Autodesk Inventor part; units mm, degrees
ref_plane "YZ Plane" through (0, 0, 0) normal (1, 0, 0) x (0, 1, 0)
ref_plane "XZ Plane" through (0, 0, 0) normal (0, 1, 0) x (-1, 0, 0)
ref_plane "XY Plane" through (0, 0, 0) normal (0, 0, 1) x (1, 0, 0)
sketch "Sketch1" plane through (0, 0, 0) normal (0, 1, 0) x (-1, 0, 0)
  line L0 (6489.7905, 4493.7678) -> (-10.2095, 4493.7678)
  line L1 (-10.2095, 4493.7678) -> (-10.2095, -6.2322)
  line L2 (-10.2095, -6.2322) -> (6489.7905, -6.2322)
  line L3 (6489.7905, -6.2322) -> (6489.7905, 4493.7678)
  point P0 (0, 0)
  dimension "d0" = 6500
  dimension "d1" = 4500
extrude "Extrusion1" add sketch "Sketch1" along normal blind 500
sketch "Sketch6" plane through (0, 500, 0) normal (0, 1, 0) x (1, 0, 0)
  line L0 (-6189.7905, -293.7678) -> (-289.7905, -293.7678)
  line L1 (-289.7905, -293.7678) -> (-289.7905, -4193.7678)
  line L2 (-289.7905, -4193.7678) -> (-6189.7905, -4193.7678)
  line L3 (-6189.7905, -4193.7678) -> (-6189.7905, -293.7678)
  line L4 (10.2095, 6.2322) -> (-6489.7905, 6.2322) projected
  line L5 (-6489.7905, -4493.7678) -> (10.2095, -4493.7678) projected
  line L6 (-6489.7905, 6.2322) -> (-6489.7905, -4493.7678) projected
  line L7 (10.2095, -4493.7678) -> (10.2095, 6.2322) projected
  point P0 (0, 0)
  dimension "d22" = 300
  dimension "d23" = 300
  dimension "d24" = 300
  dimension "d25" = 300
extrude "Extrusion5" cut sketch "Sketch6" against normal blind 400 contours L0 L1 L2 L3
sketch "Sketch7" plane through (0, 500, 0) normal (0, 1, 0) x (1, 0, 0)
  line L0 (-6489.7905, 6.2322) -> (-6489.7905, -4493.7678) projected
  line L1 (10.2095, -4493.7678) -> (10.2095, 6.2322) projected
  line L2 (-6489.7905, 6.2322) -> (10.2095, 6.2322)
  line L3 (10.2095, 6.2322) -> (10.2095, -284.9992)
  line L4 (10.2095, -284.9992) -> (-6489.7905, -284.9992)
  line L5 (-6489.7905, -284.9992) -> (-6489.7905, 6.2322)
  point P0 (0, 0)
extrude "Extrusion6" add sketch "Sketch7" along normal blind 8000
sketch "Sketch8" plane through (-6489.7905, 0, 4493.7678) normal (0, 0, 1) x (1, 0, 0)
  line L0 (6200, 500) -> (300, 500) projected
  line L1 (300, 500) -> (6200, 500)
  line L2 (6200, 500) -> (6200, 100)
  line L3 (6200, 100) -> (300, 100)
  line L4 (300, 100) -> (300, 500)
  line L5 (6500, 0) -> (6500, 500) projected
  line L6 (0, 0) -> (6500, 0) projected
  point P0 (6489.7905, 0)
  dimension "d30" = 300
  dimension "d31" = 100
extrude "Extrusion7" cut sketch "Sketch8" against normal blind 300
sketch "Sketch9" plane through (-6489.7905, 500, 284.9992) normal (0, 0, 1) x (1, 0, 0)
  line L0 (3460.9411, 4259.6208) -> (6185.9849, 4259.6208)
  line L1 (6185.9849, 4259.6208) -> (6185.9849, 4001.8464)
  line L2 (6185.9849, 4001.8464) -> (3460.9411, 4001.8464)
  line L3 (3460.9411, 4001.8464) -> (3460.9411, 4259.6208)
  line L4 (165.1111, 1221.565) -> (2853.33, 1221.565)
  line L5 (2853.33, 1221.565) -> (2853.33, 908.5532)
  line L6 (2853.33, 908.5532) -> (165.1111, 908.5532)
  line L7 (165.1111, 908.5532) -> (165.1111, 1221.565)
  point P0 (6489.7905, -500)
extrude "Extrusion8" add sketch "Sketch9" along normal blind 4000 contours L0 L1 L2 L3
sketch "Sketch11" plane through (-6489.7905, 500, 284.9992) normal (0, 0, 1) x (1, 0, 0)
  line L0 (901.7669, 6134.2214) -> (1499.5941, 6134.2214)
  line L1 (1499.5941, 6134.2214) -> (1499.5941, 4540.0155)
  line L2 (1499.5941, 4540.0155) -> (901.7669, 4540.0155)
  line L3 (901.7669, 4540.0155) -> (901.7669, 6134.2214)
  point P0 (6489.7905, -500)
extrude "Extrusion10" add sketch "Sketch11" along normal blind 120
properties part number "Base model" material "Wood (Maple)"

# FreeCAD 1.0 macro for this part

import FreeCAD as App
import Part
import Sketcher

doc = App.newDocument("Part")
body = doc.addObject("PartDesign::Body", "Body")

sketch1 = doc.addObject("Sketcher::SketchObject", "Sketch")
body.addObject(sketch1)
sketch1.AttachmentSupport = (doc.XZ_Plane, [""])
sketch1.MapMode = "FlatFace"
sketch1.addGeometry([
    Part.LineSegment(App.Vector(-6489.7905, -6.2322, 0), App.Vector(-6489.7905, 4493.7678, 0)),
    Part.LineSegment(App.Vector(-6489.7905, 4493.7678, 0), App.Vector(10.2095, 4493.7678, 0)),
    Part.LineSegment(App.Vector(10.2095, 4493.7678, 0), App.Vector(10.2095, -6.2322, 0)),
    Part.LineSegment(App.Vector(10.2095, -6.2322, 0), App.Vector(-6489.7905, -6.2322, 0)),
], False)
sketch1.addConstraint([
    Sketcher.Constraint("Coincident", 0, 2, 1, 1),
    Sketcher.Constraint("Coincident", 1, 2, 2, 1),
    Sketcher.Constraint("Coincident", 2, 2, 3, 1),
    Sketcher.Constraint("Coincident", 3, 2, 0, 1),
    Sketcher.Constraint("Vertical", 0),
    Sketcher.Constraint("Horizontal", 1),
    Sketcher.Constraint("Vertical", 2),
    Sketcher.Constraint("Horizontal", 3),
    Sketcher.Constraint("DistanceX", 1, 1, 1, 2, 6500.0),
    Sketcher.Constraint("DistanceY", 0, 1, 0, 2, 4500.0),
    Sketcher.Constraint("DistanceX", 0, 2, -1, 1, 6489.7905),
    Sketcher.Constraint("DistanceY", -1, 1, 0, 2, 4493.7678),
])
pad1 = doc.addObject("PartDesign::Pad", "Pad")
body.addObject(pad1)
pad1.Profile = sketch1
pad1.Length = 500
pad1.Reversed = True

sketch2 = doc.addObject("Sketcher::SketchObject", "Sketch001")
body.addObject(sketch2)
sketch2.AttachmentSupport = (doc.XZ_Plane, [""])
sketch2.MapMode = "FlatFace"
sketch2.AttachmentOffset = App.Placement(App.Vector(0, 0, -500), App.Rotation())
sketch2.addGeometry([
    Part.LineSegment(App.Vector(-289.7905, 293.7678, 0), App.Vector(-6189.7905, 293.7678, 0)),
    Part.LineSegment(App.Vector(-6189.7905, 293.7678, 0), App.Vector(-6189.7905, 4193.7678, 0)),
    Part.LineSegment(App.Vector(-6189.7905, 4193.7678, 0), App.Vector(-289.7905, 4193.7678, 0)),
    Part.LineSegment(App.Vector(-289.7905, 4193.7678, 0), App.Vector(-289.7905, 293.7678, 0)),
], False)
sketch2.addConstraint([
    Sketcher.Constraint("Coincident", 0, 2, 1, 1),
    Sketcher.Constraint("Coincident", 1, 2, 2, 1),
    Sketcher.Constraint("Coincident", 2, 2, 3, 1),
    Sketcher.Constraint("Coincident", 3, 2, 0, 1),
    Sketcher.Constraint("Horizontal", 0),
    Sketcher.Constraint("Vertical", 1),
    Sketcher.Constraint("Horizontal", 2),
    Sketcher.Constraint("Vertical", 3),
    Sketcher.Constraint("DistanceX", 0, 2, 0, 1, 5900.0),
    Sketcher.Constraint("DistanceY", 1, 1, 1, 2, 3900.0),
    Sketcher.Constraint("DistanceX", 0, 2, -1, 1, 6189.7905),
    Sketcher.Constraint("DistanceY", -1, 1, 0, 2, 293.7678),
])
pocket1 = doc.addObject("PartDesign::Pocket", "Pocket")
body.addObject(pocket1)
pocket1.Profile = sketch2
pocket1.Length = 400
pocket1.Reversed = True

sketch3 = doc.addObject("Sketcher::SketchObject", "Sketch002")
body.addObject(sketch3)
sketch3.AttachmentSupport = (doc.XZ_Plane, [""])
sketch3.MapMode = "FlatFace"
sketch3.AttachmentOffset = App.Placement(App.Vector(0, 0, -500), App.Rotation())
sketch3.addGeometry([
    Part.LineSegment(App.Vector(10.2095, -6.2322, 0), App.Vector(-6489.7905, -6.2322, 0)),
    Part.LineSegment(App.Vector(-6489.7905, -6.2322, 0), App.Vector(-6489.7905, 284.9992, 0)),
    Part.LineSegment(App.Vector(-6489.7905, 284.9992, 0), App.Vector(10.2095, 284.9992, 0)),
    Part.LineSegment(App.Vector(10.2095, 284.9992, 0), App.Vector(10.2095, -6.2322, 0)),
], False)
sketch3.addConstraint([
    Sketcher.Constraint("Coincident", 0, 2, 1, 1),
    Sketcher.Constraint("Coincident", 1, 2, 2, 1),
    Sketcher.Constraint("Coincident", 2, 2, 3, 1),
    Sketcher.Constraint("Coincident", 3, 2, 0, 1),
    Sketcher.Constraint("Horizontal", 0),
    Sketcher.Constraint("Vertical", 1),
    Sketcher.Constraint("Horizontal", 2),
    Sketcher.Constraint("Vertical", 3),
    Sketcher.Constraint("DistanceX", 0, 2, 0, 1, 6500.0),
    Sketcher.Constraint("DistanceY", 1, 1, 1, 2, 291.2314),
    Sketcher.Constraint("DistanceX", 0, 2, -1, 1, 6489.7905),
    Sketcher.Constraint("DistanceY", 0, 2, -1, 1, 6.2322),
])
pad2 = doc.addObject("PartDesign::Pad", "Pad001")
body.addObject(pad2)
pad2.Profile = sketch3
pad2.Length = 8000
pad2.Reversed = True

sketch4 = doc.addObject("Sketcher::SketchObject", "Sketch003")
body.addObject(sketch4)
sketch4.AttachmentSupport = (doc.XY_Plane, [""])
sketch4.MapMode = "FlatFace"
sketch4.AttachmentOffset = App.Placement(App.Vector(0, 0, 4493.7678), App.Rotation())
sketch4.addGeometry([
    Part.LineSegment(App.Vector(-289.7905, 100, 0), App.Vector(-289.7905, 500, 0)),
    Part.LineSegment(App.Vector(-289.7905, 500, 0), App.Vector(-6189.7905, 500, 0)),
    Part.LineSegment(App.Vector(-6189.7905, 500, 0), App.Vector(-6189.7905, 100, 0)),
    Part.LineSegment(App.Vector(-6189.7905, 100, 0), App.Vector(-289.7905, 100, 0)),
], False)
sketch4.addConstraint([
    Sketcher.Constraint("Coincident", 0, 2, 1, 1),
    Sketcher.Constraint("Coincident", 1, 2, 2, 1),
    Sketcher.Constraint("Coincident", 2, 2, 3, 1),
    Sketcher.Constraint("Coincident", 3, 2, 0, 1),
    Sketcher.Constraint("Vertical", 0),
    Sketcher.Constraint("Horizontal", 1),
    Sketcher.Constraint("Vertical", 2),
    Sketcher.Constraint("Horizontal", 3),
    Sketcher.Constraint("DistanceY", -1, 1, 2, 2, 100.0),
    Sketcher.Constraint("DistanceX", 1, 2, 1, 1, 5900.0),
    Sketcher.Constraint("DistanceY", 0, 1, 0, 2, 400.0),
    Sketcher.Constraint("DistanceX", 0, 2, -1, 1, 289.7905),
])
pocket2 = doc.addObject("PartDesign::Pocket", "Pocket001")
body.addObject(pocket2)
pocket2.Profile = sketch4
pocket2.Length = 300

sketch5 = doc.addObject("Sketcher::SketchObject", "Sketch004")
body.addObject(sketch5)
sketch5.AttachmentSupport = (doc.XY_Plane, [""])
sketch5.MapMode = "FlatFace"
sketch5.AttachmentOffset = App.Placement(App.Vector(0, 0, 284.9992), App.Rotation())
sketch5.addGeometry([
    Part.LineSegment(App.Vector(-303.8056, 4759.6208, 0), App.Vector(-3028.8494, 4759.6208, 0)),
    Part.LineSegment(App.Vector(-3028.8494, 4759.6208, 0), App.Vector(-3028.8494, 4501.8464, 0)),
    Part.LineSegment(App.Vector(-3028.8494, 4501.8464, 0), App.Vector(-303.8056, 4501.8464, 0)),
    Part.LineSegment(App.Vector(-303.8056, 4501.8464, 0), App.Vector(-303.8056, 4759.6208, 0)),
], False)
sketch5.addConstraint([
    Sketcher.Constraint("Coincident", 0, 2, 1, 1),
    Sketcher.Constraint("Coincident", 1, 2, 2, 1),
    Sketcher.Constraint("Coincident", 2, 2, 3, 1),
    Sketcher.Constraint("Coincident", 3, 2, 0, 1),
    Sketcher.Constraint("Horizontal", 0),
    Sketcher.Constraint("Vertical", 1),
    Sketcher.Constraint("Horizontal", 2),
    Sketcher.Constraint("Vertical", 3),
    Sketcher.Constraint("DistanceX", 0, 2, 0, 1, 2725.0438),
    Sketcher.Constraint("DistanceY", 1, 2, 1, 1, 257.7744),
    Sketcher.Constraint("DistanceX", 0, 2, -1, 1, 3028.8494),
    Sketcher.Constraint("DistanceY", -1, 1, 0, 2, 4759.6208),
])
pad3 = doc.addObject("PartDesign::Pad", "Pad002")
body.addObject(pad3)
pad3.Profile = sketch5
pad3.Length = 4000

sketch6 = doc.addObject("Sketcher::SketchObject", "Sketch005")
body.addObject(sketch6)
sketch6.AttachmentSupport = (doc.XY_Plane, [""])
sketch6.MapMode = "FlatFace"
sketch6.AttachmentOffset = App.Placement(App.Vector(0, 0, 284.9992), App.Rotation())
sketch6.addGeometry([
    Part.LineSegment(App.Vector(-4990.1964, 6634.2214, 0), App.Vector(-5588.0236, 6634.2214, 0)),
    Part.LineSegment(App.Vector(-5588.0236, 6634.2214, 0), App.Vector(-5588.0236, 5040.0155, 0)),
    Part.LineSegment(App.Vector(-5588.0236, 5040.0155, 0), App.Vector(-4990.1964, 5040.0155, 0)),
    Part.LineSegment(App.Vector(-4990.1964, 5040.0155, 0), App.Vector(-4990.1964, 6634.2214, 0)),
], False)
sketch6.addConstraint([
    Sketcher.Constraint("Coincident", 0, 2, 1, 1),
    Sketcher.Constraint("Coincident", 1, 2, 2, 1),
    Sketcher.Constraint("Coincident", 2, 2, 3, 1),
    Sketcher.Constraint("Coincident", 3, 2, 0, 1),
    Sketcher.Constraint("Horizontal", 0),
    Sketcher.Constraint("Vertical", 1),
    Sketcher.Constraint("Horizontal", 2),
    Sketcher.Constraint("Vertical", 3),
    Sketcher.Constraint("DistanceY", 1, 2, 1, 1, 1594.206),
    Sketcher.Constraint("DistanceX", 0, 2, 0, 1, 597.8272),
    Sketcher.Constraint("DistanceX", 0, 2, -1, 1, 5588.0236),
    Sketcher.Constraint("DistanceY", -1, 1, 0, 2, 6634.2214),
])
pad4 = doc.addObject("PartDesign::Pad", "Pad003")
body.addObject(pad4)
pad4.Profile = sketch6
pad4.Length = 120

doc.recompute()
